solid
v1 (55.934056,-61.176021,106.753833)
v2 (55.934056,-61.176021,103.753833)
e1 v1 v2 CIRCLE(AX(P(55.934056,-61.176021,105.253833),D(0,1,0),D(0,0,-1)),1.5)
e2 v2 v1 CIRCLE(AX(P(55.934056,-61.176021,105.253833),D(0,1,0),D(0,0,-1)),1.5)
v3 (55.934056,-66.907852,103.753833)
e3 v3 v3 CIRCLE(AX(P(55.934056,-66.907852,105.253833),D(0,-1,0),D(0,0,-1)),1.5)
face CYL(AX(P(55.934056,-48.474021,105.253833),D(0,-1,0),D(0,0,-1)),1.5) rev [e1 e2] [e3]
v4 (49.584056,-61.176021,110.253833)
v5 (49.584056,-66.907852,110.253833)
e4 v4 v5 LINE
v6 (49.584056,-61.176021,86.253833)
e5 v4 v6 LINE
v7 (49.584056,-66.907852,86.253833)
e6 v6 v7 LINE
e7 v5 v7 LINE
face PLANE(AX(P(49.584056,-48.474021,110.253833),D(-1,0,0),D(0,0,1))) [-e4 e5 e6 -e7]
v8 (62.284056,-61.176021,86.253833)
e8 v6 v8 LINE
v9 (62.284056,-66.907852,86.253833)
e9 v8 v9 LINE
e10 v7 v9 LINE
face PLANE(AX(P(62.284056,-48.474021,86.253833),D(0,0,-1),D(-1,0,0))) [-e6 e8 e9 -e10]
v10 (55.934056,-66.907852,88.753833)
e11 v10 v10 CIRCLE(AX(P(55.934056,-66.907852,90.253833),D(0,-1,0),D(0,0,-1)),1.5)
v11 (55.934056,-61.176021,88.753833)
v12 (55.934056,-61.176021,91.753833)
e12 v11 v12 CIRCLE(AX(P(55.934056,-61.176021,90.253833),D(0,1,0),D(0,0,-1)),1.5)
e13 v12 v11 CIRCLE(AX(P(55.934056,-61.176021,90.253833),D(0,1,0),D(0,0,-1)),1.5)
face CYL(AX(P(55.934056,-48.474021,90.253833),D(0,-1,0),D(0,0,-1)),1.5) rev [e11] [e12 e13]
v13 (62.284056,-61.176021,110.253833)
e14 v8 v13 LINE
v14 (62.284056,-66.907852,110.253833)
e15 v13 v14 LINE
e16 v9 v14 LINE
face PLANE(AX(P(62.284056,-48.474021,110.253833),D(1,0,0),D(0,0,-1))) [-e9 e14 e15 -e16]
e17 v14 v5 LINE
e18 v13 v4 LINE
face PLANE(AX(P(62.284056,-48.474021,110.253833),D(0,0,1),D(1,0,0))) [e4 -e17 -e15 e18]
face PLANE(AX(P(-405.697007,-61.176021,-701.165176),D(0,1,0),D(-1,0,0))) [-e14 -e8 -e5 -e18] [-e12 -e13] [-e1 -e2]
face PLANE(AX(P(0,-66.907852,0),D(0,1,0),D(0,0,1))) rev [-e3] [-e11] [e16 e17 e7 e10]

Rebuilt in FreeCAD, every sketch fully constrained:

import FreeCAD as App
import Part
import Sketcher
from FreeCAD import Vector


def add_polygon(sketch, points):
    """Adds a closed chain of lines whose ends are joined by coincident constraints."""
    first, n = sketch.GeometryCount, len(points)
    for a, b in zip(points, points[1:] + points[:1]):
        sketch.addGeometry(Part.LineSegment(App.Vector(*a, 0), App.Vector(*b, 0)), False)
    for i in range(n):
        sketch.addConstraint(Sketcher.Constraint("Coincident", first + i, 2, first + (i + 1) % n, 1))

doc = App.newDocument("Part")
body = doc.addObject("PartDesign::Body", "Body")

# Sketch on XZ plane
sketch1 = body.newObject("Sketcher::SketchObject", "Sketch")
sketch1.AttachmentSupport = (doc.getObject("XZ_Plane"), [""])
sketch1.MapMode = "FlatFace"
sketch1.AttachmentOffset = App.Placement(Vector(0, 0, 66.907852), App.Rotation())
add_polygon(sketch1, [(62.3, 86.3), (62.3, 110.3), (49.6, 110.3), (49.6, 86.3)])  # lines 0-3
sketch1.addGeometry(Part.Circle(Vector(55.9, 105.3, 0), Vector(0, 0, 1), 1.5), False)  # 4
sketch1.addGeometry(Part.Circle(Vector(55.9, 90.3, 0), Vector(0, 0, 1), 1.5), False)  # 5
sketch1.addConstraint([
    Sketcher.Constraint("Vertical", 0),
    Sketcher.Constraint("Horizontal", 1),
    Sketcher.Constraint("Vertical", 2),
    Sketcher.Constraint("Horizontal", 3),
    Sketcher.Constraint("Equal", 4, 5),
    Sketcher.Constraint("Vertical", 4, 3, 5, 3),
    Sketcher.Constraint("Diameter", 4, 3.0),
    Sketcher.Constraint("DistanceY", 0, 1, 0, 2, 24.0),
    Sketcher.Constraint("DistanceX", 1, 2, 1, 1, 12.7),
    Sketcher.Constraint("DistanceY", 5, 3, 4, 3, 15.0),
    Sketcher.Constraint("DistanceY", 4, 3, 0, 2, 5.0),
    Sketcher.Constraint("DistanceX", 4, 3, 0, 2, 6.35),
    Sketcher.Constraint("DistanceX", -1, 1, 4, 3, 55.934056),
    Sketcher.Constraint("DistanceY", -1, 1, 4, 3, 105.253833),
])
pad1 = body.newObject("PartDesign::Pad", "Pad")
pad1.Profile = sketch1
pad1.Length = 5.731831
pad1.Reversed = True

doc.recompute()
